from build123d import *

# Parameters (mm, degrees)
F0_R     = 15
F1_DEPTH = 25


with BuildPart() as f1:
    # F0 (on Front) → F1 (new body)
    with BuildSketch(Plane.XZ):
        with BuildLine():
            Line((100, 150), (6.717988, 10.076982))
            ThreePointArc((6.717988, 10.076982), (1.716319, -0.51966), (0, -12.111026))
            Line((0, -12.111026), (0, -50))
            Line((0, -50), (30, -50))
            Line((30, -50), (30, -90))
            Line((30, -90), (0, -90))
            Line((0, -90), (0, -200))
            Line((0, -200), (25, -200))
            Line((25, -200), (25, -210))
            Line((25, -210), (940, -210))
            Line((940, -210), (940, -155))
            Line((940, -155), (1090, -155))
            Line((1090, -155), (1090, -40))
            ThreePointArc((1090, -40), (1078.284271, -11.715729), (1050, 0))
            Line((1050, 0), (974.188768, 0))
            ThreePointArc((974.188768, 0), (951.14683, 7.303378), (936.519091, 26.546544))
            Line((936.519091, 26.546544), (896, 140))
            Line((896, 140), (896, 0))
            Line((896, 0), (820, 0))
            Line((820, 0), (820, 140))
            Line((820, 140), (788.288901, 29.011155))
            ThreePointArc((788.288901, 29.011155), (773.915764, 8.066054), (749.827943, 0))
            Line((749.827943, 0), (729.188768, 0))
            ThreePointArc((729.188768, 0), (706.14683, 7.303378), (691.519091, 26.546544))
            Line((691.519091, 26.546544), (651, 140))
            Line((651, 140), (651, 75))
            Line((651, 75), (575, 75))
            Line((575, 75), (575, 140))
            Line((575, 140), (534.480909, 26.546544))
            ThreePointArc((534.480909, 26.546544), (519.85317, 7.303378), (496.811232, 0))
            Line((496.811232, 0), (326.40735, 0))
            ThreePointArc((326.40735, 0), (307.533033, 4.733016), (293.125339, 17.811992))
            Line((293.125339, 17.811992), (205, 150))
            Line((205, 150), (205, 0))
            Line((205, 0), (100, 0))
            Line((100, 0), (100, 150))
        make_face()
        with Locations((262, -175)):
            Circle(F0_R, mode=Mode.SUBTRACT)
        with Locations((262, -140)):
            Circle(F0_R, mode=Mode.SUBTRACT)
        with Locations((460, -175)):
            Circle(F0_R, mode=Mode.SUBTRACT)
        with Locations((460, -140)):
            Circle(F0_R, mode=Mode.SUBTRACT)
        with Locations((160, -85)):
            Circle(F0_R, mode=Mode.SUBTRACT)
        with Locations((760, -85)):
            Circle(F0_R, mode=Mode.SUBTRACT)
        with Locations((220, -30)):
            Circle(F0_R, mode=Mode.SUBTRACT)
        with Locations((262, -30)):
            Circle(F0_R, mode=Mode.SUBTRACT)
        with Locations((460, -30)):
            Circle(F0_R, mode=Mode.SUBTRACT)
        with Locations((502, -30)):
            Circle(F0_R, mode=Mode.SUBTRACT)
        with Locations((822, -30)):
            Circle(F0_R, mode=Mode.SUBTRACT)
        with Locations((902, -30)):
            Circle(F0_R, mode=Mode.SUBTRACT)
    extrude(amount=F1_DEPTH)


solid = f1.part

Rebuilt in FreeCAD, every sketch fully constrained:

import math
import FreeCAD as App
import Part
import Sketcher
Q = App.Units.Quantity

doc = App.newDocument("Part")
body = doc.addObject("PartDesign::Body", "Body")

# Sketch on XZ plane
sketch1 = body.newObject("Sketcher::SketchObject", "Sketch")
sketch1.AttachmentSupport = (doc.getObject("XZ_Plane"), [""])
sketch1.MapMode = "FlatFace"
sketch1.addGeometry(Part.LineSegment(App.Vector(100, 150, 0), App.Vector(7, 10, 0)), False)
sketch1.addGeometry(Part.ArcOfCircle(Part.Circle(App.Vector(40, -12, 0), App.Vector(0, 0, 1), 40), math.radians(146), math.radians(180)), False)
sketch1.addGeometry(Part.LineSegment(App.Vector(0, -12, 0), App.Vector(0, -50, 0)), False)
sketch1.addGeometry(Part.LineSegment(App.Vector(0, -50, 0), App.Vector(30, -50, 0)), False)
sketch1.addGeometry(Part.LineSegment(App.Vector(30, -50, 0), App.Vector(30, -90, 0)), False)
sketch1.addGeometry(Part.LineSegment(App.Vector(30, -90, 0), App.Vector(0, -90, 0)), False)
sketch1.addGeometry(Part.LineSegment(App.Vector(0, -90, 0), App.Vector(0, -200, 0)), False)
sketch1.addGeometry(Part.LineSegment(App.Vector(0, -200, 0), App.Vector(25, -200, 0)), False)
sketch1.addGeometry(Part.LineSegment(App.Vector(25, -200, 0), App.Vector(25, -210, 0)), False)
sketch1.addGeometry(Part.LineSegment(App.Vector(25, -210, 0), App.Vector(940, -210, 0)), False)
sketch1.addGeometry(Part.LineSegment(App.Vector(940, -210, 0), App.Vector(940, -155, 0)), False)
sketch1.addGeometry(Part.LineSegment(App.Vector(940, -155, 0), App.Vector(1090, -155, 0)), False)
sketch1.addGeometry(Part.LineSegment(App.Vector(1090, -155, 0), App.Vector(1090, -40, 0)), False)
sketch1.addGeometry(Part.ArcOfCircle(Part.Circle(App.Vector(1050, -40, 0), App.Vector(0, 0, 1), 40), math.radians(0), math.radians(90)), False)
sketch1.addGeometry(Part.LineSegment(App.Vector(1050, 0, 0), App.Vector(974, 0, 0)), False)
sketch1.addGeometry(Part.ArcOfCircle(Part.Circle(App.Vector(974, 40, 0), App.Vector(0, 0, 1), 40), math.radians(-160), math.radians(-90)), False)
sketch1.addGeometry(Part.LineSegment(App.Vector(937, 27, 0), App.Vector(896, 140, 0)), False)
sketch1.addGeometry(Part.LineSegment(App.Vector(896, 140, 0), App.Vector(896, 0, 0)), False)
sketch1.addGeometry(Part.LineSegment(App.Vector(896, 0, 0), App.Vector(820, 0, 0)), False)
sketch1.addGeometry(Part.LineSegment(App.Vector(820, 0, 0), App.Vector(820, 140, 0)), False)
sketch1.addGeometry(Part.LineSegment(App.Vector(820, 140, 0), App.Vector(788, 29, 0)), False)
sketch1.addGeometry(Part.ArcOfCircle(Part.Circle(App.Vector(750, 40, 0), App.Vector(0, 0, 1), 40), math.radians(-90), math.radians(-16)), False)
sketch1.addGeometry(Part.LineSegment(App.Vector(750, 0, 0), App.Vector(729, 0, 0)), False)
sketch1.addGeometry(Part.ArcOfCircle(Part.Circle(App.Vector(729, 40, 0), App.Vector(0, 0, 1), 40), math.radians(-160), math.radians(-90)), False)
sketch1.addGeometry(Part.LineSegment(App.Vector(692, 27, 0), App.Vector(651, 140, 0)), False)
sketch1.addGeometry(Part.LineSegment(App.Vector(651, 140, 0), App.Vector(651, 75, 0)), False)
sketch1.addGeometry(Part.LineSegment(App.Vector(651, 75, 0), App.Vector(575, 75, 0)), False)
sketch1.addGeometry(Part.LineSegment(App.Vector(575, 75, 0), App.Vector(575, 140, 0)), False)
sketch1.addGeometry(Part.LineSegment(App.Vector(575, 140, 0), App.Vector(534, 27, 0)), False)
sketch1.addGeometry(Part.ArcOfCircle(Part.Circle(App.Vector(497, 40, 0), App.Vector(0, 0, 1), 40), math.radians(-90), math.radians(-20)), False)
sketch1.addGeometry(Part.LineSegment(App.Vector(497, 0, 0), App.Vector(326, 0, 0)), False)
sketch1.addGeometry(Part.ArcOfCircle(Part.Circle(App.Vector(326, 40, 0), App.Vector(0, 0, 1), 40), math.radians(-146), math.radians(-90)), False)
sketch1.addGeometry(Part.LineSegment(App.Vector(293, 18, 0), App.Vector(205, 150, 0)), False)
sketch1.addGeometry(Part.LineSegment(App.Vector(205, 150, 0), App.Vector(205, 0, 0)), False)
sketch1.addGeometry(Part.LineSegment(App.Vector(205, 0, 0), App.Vector(100, 0, 0)), False)
sketch1.addGeometry(Part.LineSegment(App.Vector(100, 0, 0), App.Vector(100, 150, 0)), False)
sketch1.addGeometry(Part.Circle(App.Vector(262, -175, 0), App.Vector(0, 0, 1), 15), False)
sketch1.addGeometry(Part.Circle(App.Vector(460, -175, 0), App.Vector(0, 0, 1), 15), False)
sketch1.addGeometry(Part.Circle(App.Vector(262, -140, 0), App.Vector(0, 0, 1), 15), False)
sketch1.addGeometry(Part.Circle(App.Vector(460, -140, 0), App.Vector(0, 0, 1), 15), False)
sketch1.addGeometry(Part.Circle(App.Vector(160, -85, 0), App.Vector(0, 0, 1), 15), False)
sketch1.addGeometry(Part.Circle(App.Vector(220, -30, 0), App.Vector(0, 0, 1), 15), False)
sketch1.addGeometry(Part.Circle(App.Vector(262, -30, 0), App.Vector(0, 0, 1), 15), False)
sketch1.addGeometry(Part.Circle(App.Vector(460, -30, 0), App.Vector(0, 0, 1), 15), False)
sketch1.addGeometry(Part.Circle(App.Vector(502, -30, 0), App.Vector(0, 0, 1), 15), False)
sketch1.addGeometry(Part.Circle(App.Vector(760, -85, 0), App.Vector(0, 0, 1), 15), False)
sketch1.addGeometry(Part.Circle(App.Vector(822, -30, 0), App.Vector(0, 0, 1), 15), False)
sketch1.addGeometry(Part.Circle(App.Vector(902, -30, 0), App.Vector(0, 0, 1), 15), False)
sketch1.addConstraint(Sketcher.Constraint("Tangent", 0, 2, 1, 1))
sketch1.addConstraint(Sketcher.Constraint("Tangent", 1, 2, 2, 1))
sketch1.addConstraint(Sketcher.Constraint("Coincident", 2, 2, 3, 1))
sketch1.addConstraint(Sketcher.Constraint("Coincident", 3, 2, 4, 1))
sketch1.addConstraint(Sketcher.Constraint("Coincident", 4, 2, 5, 1))
sketch1.addConstraint(Sketcher.Constraint("Coincident", 5, 2, 6, 1))
sketch1.addConstraint(Sketcher.Constraint("Coincident", 6, 2, 7, 1))
sketch1.addConstraint(Sketcher.Constraint("Coincident", 7, 2, 8, 1))
sketch1.addConstraint(Sketcher.Constraint("Coincident", 8, 2, 9, 1))
sketch1.addConstraint(Sketcher.Constraint("Coincident", 9, 2, 10, 1))
sketch1.addConstraint(Sketcher.Constraint("Coincident", 10, 2, 11, 1))
sketch1.addConstraint(Sketcher.Constraint("Coincident", 11, 2, 12, 1))
sketch1.addConstraint(Sketcher.Constraint("Tangent", 12, 2, 13, 1))
sketch1.addConstraint(Sketcher.Constraint("Tangent", 13, 2, 14, 1))
sketch1.addConstraint(Sketcher.Constraint("Tangent", 14, 2, 15, 2))
sketch1.addConstraint(Sketcher.Constraint("Tangent", 15, 1, 16, 1))
sketch1.addConstraint(Sketcher.Constraint("Coincident", 16, 2, 17, 1))
sketch1.addConstraint(Sketcher.Constraint("Coincident", 17, 2, 18, 1))
sketch1.addConstraint(Sketcher.Constraint("Coincident", 18, 2, 19, 1))
sketch1.addConstraint(Sketcher.Constraint("Coincident", 19, 2, 20, 1))
sketch1.addConstraint(Sketcher.Constraint("Tangent", 20, 2, 21, 2))
sketch1.addConstraint(Sketcher.Constraint("Tangent", 21, 1, 22, 1))
sketch1.addConstraint(Sketcher.Constraint("Tangent", 22, 2, 23, 2))
sketch1.addConstraint(Sketcher.Constraint("Tangent", 23, 1, 24, 1))
sketch1.addConstraint(Sketcher.Constraint("Coincident", 24, 2, 25, 1))
sketch1.addConstraint(Sketcher.Constraint("Coincident", 25, 2, 26, 1))
sketch1.addConstraint(Sketcher.Constraint("Coincident", 26, 2, 27, 1))
sketch1.addConstraint(Sketcher.Constraint("Coincident", 27, 2, 28, 1))
sketch1.addConstraint(Sketcher.Constraint("Tangent", 28, 2, 29, 2))
sketch1.addConstraint(Sketcher.Constraint("Tangent", 29, 1, 30, 1))
sketch1.addConstraint(Sketcher.Constraint("Tangent", 30, 2, 31, 2))
sketch1.addConstraint(Sketcher.Constraint("Tangent", 31, 1, 32, 1))
sketch1.addConstraint(Sketcher.Constraint("Coincident", 32, 2, 33, 1))
sketch1.addConstraint(Sketcher.Constraint("Coincident", 33, 2, 34, 1))
sketch1.addConstraint(Sketcher.Constraint("Coincident", 34, 2, 35, 1))
sketch1.addConstraint(Sketcher.Constraint("Coincident", 35, 2, 0, 1))
sketch1.addConstraint(Sketcher.Constraint("Vertical", 2))
sketch1.addConstraint(Sketcher.Constraint("Horizontal", 3))
sketch1.addConstraint(Sketcher.Constraint("Vertical", 4))
sketch1.addConstraint(Sketcher.Constraint("Horizontal", 5))
sketch1.addConstraint(Sketcher.Constraint("Vertical", 6))
sketch1.addConstraint(Sketcher.Constraint("Horizontal", 7))
sketch1.addConstraint(Sketcher.Constraint("Vertical", 8))
sketch1.addConstraint(Sketcher.Constraint("Horizontal", 9))
sketch1.addConstraint(Sketcher.Constraint("Vertical", 10))
sketch1.addConstraint(Sketcher.Constraint("Horizontal", 11))
sketch1.addConstraint(Sketcher.Constraint("Vertical", 12))
sketch1.addConstraint(Sketcher.Constraint("Horizontal", 14))
sketch1.addConstraint(Sketcher.Constraint("Vertical", 17))
sketch1.addConstraint(Sketcher.Constraint("Horizontal", 18))
sketch1.addConstraint(Sketcher.Constraint("Vertical", 19))
sketch1.addConstraint(Sketcher.Constraint("Horizontal", 22))
sketch1.addConstraint(Sketcher.Constraint("Vertical", 25))
sketch1.addConstraint(Sketcher.Constraint("Horizontal", 26))
sketch1.addConstraint(Sketcher.Constraint("Vertical", 27))
sketch1.addConstraint(Sketcher.Constraint("Horizontal", 30))
sketch1.addConstraint(Sketcher.Constraint("Vertical", 33))
sketch1.addConstraint(Sketcher.Constraint("Horizontal", 34))
sketch1.addConstraint(Sketcher.Constraint("Vertical", 35))
sketch1.addConstraint(Sketcher.Constraint("Equal", 13, 15))
sketch1.addConstraint(Sketcher.Constraint("Equal", 15, 23))
sketch1.addConstraint(Sketcher.Constraint("Equal", 23, 29))
sketch1.addConstraint(Sketcher.Constraint("Equal", 21, 31))
sketch1.addConstraint(Sketcher.Constraint("Equal", 36, 37))
sketch1.addConstraint(Sketcher.Constraint("Equal", 37, 38))
sketch1.addConstraint(Sketcher.Constraint("Equal", 38, 39))
sketch1.addConstraint(Sketcher.Constraint("Equal", 39, 40))
sketch1.addConstraint(Sketcher.Constraint("Equal", 40, 41))
sketch1.addConstraint(Sketcher.Constraint("Equal", 41, 42))
sketch1.addConstraint(Sketcher.Constraint("Equal", 42, 43))
sketch1.addConstraint(Sketcher.Constraint("Equal", 43, 44))
sketch1.addConstraint(Sketcher.Constraint("Equal", 44, 45))
sketch1.addConstraint(Sketcher.Constraint("Equal", 45, 46))
sketch1.addConstraint(Sketcher.Constraint("Equal", 46, 47))
sketch1.addConstraint(Sketcher.Constraint("PointOnObject", 1, 2, -2))
sketch1.addConstraint(Sketcher.Constraint("PointOnObject", 5, 2, -2))
sketch1.addConstraint(Sketcher.Constraint("PointOnObject", 13, 2, -1))
sketch1.addConstraint(Sketcher.Constraint("PointOnObject", 17, 2, -1))
sketch1.addConstraint(Sketcher.Constraint("PointOnObject", 21, 1, -1))
sketch1.addConstraint(Sketcher.Constraint("PointOnObject", 29, 1, -1))
sketch1.addConstraint(Sketcher.Constraint("PointOnObject", 33, 2, -1))
sketch1.addConstraint(Sketcher.Constraint("Parallel", 16, 24))
sketch1.addConstraint(Sketcher.Constraint("Horizontal", 36, 3, 37, 3))
sketch1.addConstraint(Sketcher.Constraint("Horizontal", 38, 3, 39, 3))
sketch1.addConstraint(Sketcher.Constraint("Horizontal", 41, 3, 42, 3))
sketch1.addConstraint(Sketcher.Constraint("Horizontal", 42, 3, 43, 3))
sketch1.addConstraint(Sketcher.Constraint("Horizontal", 43, 3, 44, 3))
sketch1.addConstraint(Sketcher.Constraint("Horizontal", 40, 3, 45, 3))
sketch1.addConstraint(Sketcher.Constraint("Horizontal", 44, 3, 46, 3))
sketch1.addConstraint(Sketcher.Constraint("Horizontal", 46, 3, 47, 3))
sketch1.addConstraint(Sketcher.Constraint("Horizontal", 16, 2, 19, 2))
sketch1.addConstraint(Sketcher.Constraint("Horizontal", 19, 2, 24, 2))
sketch1.addConstraint(Sketcher.Constraint("Horizontal", 24, 2, 27, 2))
sketch1.addConstraint(Sketcher.Constraint("Horizontal", 23, 1, 28, 2))
sketch1.addConstraint(Sketcher.Constraint("Horizontal", 32, 2, 35, 2))
sketch1.addConstraint(Sketcher.Constraint("Vertical", 36, 3, 38, 3))
sketch1.addConstraint(Sketcher.Constraint("Vertical", 37, 3, 39, 3))
sketch1.addConstraint(Sketcher.Constraint("Vertical", 38, 3, 42, 3))
sketch1.addConstraint(Sketcher.Constraint("Vertical", 39, 3, 43, 3))
sketch1.addConstraint(Sketcher.Constraint("Equal", 18, 26))
sketch1.addConstraint(Sketcher.Constraint("Equal", 11, 33))
sketch1.addConstraint(Sketcher.Constraint("Diameter", 36, Q("30 mm")))
sketch1.addConstraint(Sketcher.Constraint("Radius", 13, Q("40.000001 mm")))
sketch1.addConstraint(Sketcher.Constraint("Radius", 21, Q("39.999999 mm")))
sketch1.addConstraint(Sketcher.Constraint("DistanceX", 3, 1, 3, 2, Q("30 mm")))
sketch1.addConstraint(Sketcher.Constraint("DistanceX", 7, 1, 7, 2, Q("25 mm")))
sketch1.addConstraint(Sketcher.Constraint("DistanceX", 9, 1, 9, 2, Q("915 mm")))
sketch1.addConstraint(Sketcher.Constraint("DistanceX", 11, 1, 11, 2, Q("150 mm")))
sketch1.addConstraint(Sketcher.Constraint("DistanceX", 18, 2, 18, 1, Q("76 mm")))
sketch1.addConstraint(Sketcher.Constraint("DistanceX", 34, 2, 34, 1, Q("105 mm")))
sketch1.addConstraint(Sketcher.Constraint("DistanceY", 4, 2, 4, 1, Q("40 mm")))
sketch1.addConstraint(Sketcher.Constraint("DistanceY", 6, 2, 6, 1, Q("110 mm")))
sketch1.addConstraint(Sketcher.Constraint("DistanceY", 8, 2, 8, 1, Q("10 mm")))
sketch1.addConstraint(Sketcher.Constraint("DistanceY", 10, 1, 10, 2, Q("55 mm")))
sketch1.addConstraint(Sketcher.Constraint("DistanceY", 12, 1, 12, 2, Q("115 mm")))
sketch1.addConstraint(Sketcher.Constraint("DistanceY", 17, 2, 17, 1, Q("140 mm")))
sketch1.addConstraint(Sketcher.Constraint("DistanceY", 25, 2, 25, 1, Q("65 mm")))
sketch1.addConstraint(Sketcher.Constraint("DistanceX", -1, 1, 36, 3, Q("262 mm")))
sketch1.addConstraint(Sketcher.Constraint("DistanceY", 36, 3, -1, 1, Q("175 mm")))
sketch1.addConstraint(Sketcher.Constraint("DistanceX", -1, 1, 37, 3, Q("460 mm")))
sketch1.addConstraint(Sketcher.Constraint("DistanceY", 38, 3, -1, 1, Q("140 mm")))
sketch1.addConstraint(Sketcher.Constraint("DistanceX", -1, 1, 40, 3, Q("160 mm")))
sketch1.addConstraint(Sketcher.Constraint("DistanceY", 40, 3, -1, 1, Q("85 mm")))
sketch1.addConstraint(Sketcher.Constraint("DistanceX", -1, 1, 41, 3, Q("220 mm")))
sketch1.addConstraint(Sketcher.Constraint("DistanceY", 41, 3, -1, 1, Q("30 mm")))
sketch1.addConstraint(Sketcher.Constraint("DistanceX", -1, 1, 44, 3, Q("502 mm")))
sketch1.addConstraint(Sketcher.Constraint("DistanceX", -1, 1, 45, 3, Q("760 mm")))
sketch1.addConstraint(Sketcher.Constraint("DistanceX", -1, 1, 46, 3, Q("822 mm")))
sketch1.addConstraint(Sketcher.Constraint("DistanceX", -1, 1, 47, 3, Q("902 mm")))
sketch1.addConstraint(Sketcher.Constraint("DistanceX", -1, 1, 16, 2, Q("896 mm")))
sketch1.addConstraint(Sketcher.Constraint("DistanceX", -1, 1, 24, 2, Q("651 mm")))
sketch1.addConstraint(Sketcher.Constraint("DistanceX", -1, 1, 32, 2, Q("205 mm")))
sketch1.addConstraint(Sketcher.Constraint("Radius", 1, Q("40.000004 mm")))
sketch1.addConstraint(Sketcher.Constraint("DistanceX", -1, 1, 20, 2, Q("788.288901 mm")))
sketch1.addConstraint(Sketcher.Constraint("Distance", 0, Q("168.166539 mm")))
sketch1.addConstraint(Sketcher.Constraint("Distance", 16, Q("120.47192 mm")))
sketch1.addConstraint(Sketcher.Constraint("DistanceX", 30, 2, 30, 1, Q("170.403882 mm")))
pad1 = body.newObject("PartDesign::Pad", "Pad")
pad1.Profile = sketch1
pad1.Length = 25

doc.recompute()
